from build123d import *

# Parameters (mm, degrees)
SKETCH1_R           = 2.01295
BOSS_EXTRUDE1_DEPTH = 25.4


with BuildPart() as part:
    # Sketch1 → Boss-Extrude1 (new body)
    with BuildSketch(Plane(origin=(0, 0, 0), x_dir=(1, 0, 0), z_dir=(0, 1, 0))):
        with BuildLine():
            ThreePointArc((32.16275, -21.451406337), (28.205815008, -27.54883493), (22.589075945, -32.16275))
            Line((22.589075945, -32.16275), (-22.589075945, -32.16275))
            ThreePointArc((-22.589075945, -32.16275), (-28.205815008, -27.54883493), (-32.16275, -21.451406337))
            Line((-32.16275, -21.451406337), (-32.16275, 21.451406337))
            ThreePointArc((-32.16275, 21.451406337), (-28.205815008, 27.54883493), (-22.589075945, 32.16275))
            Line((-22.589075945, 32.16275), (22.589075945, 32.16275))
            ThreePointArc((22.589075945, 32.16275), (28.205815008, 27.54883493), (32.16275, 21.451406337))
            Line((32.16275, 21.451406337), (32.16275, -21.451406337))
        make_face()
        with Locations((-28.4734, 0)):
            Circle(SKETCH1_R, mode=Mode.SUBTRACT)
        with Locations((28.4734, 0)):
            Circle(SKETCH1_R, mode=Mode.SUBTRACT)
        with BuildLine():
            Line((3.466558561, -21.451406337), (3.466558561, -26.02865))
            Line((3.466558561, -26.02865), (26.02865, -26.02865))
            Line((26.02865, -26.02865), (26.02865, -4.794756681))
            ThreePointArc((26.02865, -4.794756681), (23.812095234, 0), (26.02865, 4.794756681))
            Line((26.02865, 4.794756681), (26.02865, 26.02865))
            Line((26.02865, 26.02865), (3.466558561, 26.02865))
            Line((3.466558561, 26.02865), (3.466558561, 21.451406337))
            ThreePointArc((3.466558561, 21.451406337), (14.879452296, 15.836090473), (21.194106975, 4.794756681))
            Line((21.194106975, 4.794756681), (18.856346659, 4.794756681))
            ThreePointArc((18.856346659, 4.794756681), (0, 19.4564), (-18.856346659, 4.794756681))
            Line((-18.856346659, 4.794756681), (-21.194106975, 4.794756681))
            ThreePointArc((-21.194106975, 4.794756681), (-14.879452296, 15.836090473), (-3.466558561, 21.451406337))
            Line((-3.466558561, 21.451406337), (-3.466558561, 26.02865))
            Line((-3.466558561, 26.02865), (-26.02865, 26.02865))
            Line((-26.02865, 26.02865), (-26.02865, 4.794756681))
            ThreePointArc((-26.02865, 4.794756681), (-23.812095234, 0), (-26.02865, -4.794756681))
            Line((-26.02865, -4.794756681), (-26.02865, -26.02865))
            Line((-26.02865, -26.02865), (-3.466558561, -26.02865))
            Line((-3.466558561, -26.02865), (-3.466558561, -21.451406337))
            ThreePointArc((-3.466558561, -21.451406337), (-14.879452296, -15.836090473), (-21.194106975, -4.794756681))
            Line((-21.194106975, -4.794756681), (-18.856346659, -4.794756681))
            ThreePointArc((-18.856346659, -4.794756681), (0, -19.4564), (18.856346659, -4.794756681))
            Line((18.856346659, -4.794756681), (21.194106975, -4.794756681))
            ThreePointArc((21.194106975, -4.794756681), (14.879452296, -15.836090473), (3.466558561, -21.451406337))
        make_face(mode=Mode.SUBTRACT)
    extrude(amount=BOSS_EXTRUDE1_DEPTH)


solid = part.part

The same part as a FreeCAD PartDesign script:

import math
import FreeCAD as App
import Part
import Sketcher
from FreeCAD import Vector
Q = App.Units.Quantity

doc = App.newDocument("Part")
body = doc.addObject("PartDesign::Body", "Body")

sketch1 = doc.addObject("Sketcher::SketchObject", "Sketch")
body.addObject(sketch1)
sketch1.AttachmentSupport = (doc.XZ_Plane, [""])
sketch1.MapMode = "FlatFace"
sketch1.addGeometry(Part.ArcOfCircle(Part.Circle(Vector(10.509776, 11.732321, 0), Vector(0, 0, 1), 23.734193), math.radians(24.173252), math.radians(59.406694)), False)
sketch1.addGeometry(Part.LineSegment(Vector(32.16275, 21.451406, 0), Vector(32.16275, -21.451406, 0)), False)
sketch1.addGeometry(Part.ArcOfCircle(Part.Circle(Vector(10.509776, -11.732321, 0), Vector(0, 0, 1), 23.734193), math.radians(-59.406694), math.radians(-24.173252)), False)
sketch1.addGeometry(Part.LineSegment(Vector(22.589076, -32.16275, 0), Vector(-22.589076, -32.16275, 0)), False)
sketch1.addGeometry(Part.ArcOfCircle(Part.Circle(Vector(-10.509776, -11.732321, 0), Vector(0, 0, 1), 23.734193), math.radians(-155.826748), math.radians(-120.593306)), False)
sketch1.addGeometry(Part.LineSegment(Vector(-32.16275, -21.451406, 0), Vector(-32.16275, 21.451406, 0)), False)
sketch1.addGeometry(Part.ArcOfCircle(Part.Circle(Vector(-10.509776, 11.732321, 0), Vector(0, 0, 1), 23.734193), math.radians(120.593306), math.radians(155.826748)), False)
sketch1.addGeometry(Part.LineSegment(Vector(-22.589076, 32.16275, 0), Vector(22.589076, 32.16275, 0)), False)
sketch1.addGeometry(Part.Circle(Vector(28.4734, 0, 0), Vector(0, 0, 1), 2.01295), False)
sketch1.addGeometry(Part.ArcOfCircle(Part.Circle(Vector(0, 0, 0), Vector(0, 0, 1), 21.7297), math.radians(12.747479), math.radians(80.820331)), False)
sketch1.addGeometry(Part.LineSegment(Vector(21.194107, 4.794757, 0), Vector(18.856347, 4.794757, 0)), False)
sketch1.addGeometry(Part.ArcOfCircle(Part.Circle(Vector(0, 0, 0), Vector(0, 0, 1), 19.4564), math.radians(14.266711), math.radians(165.733289)), False)
sketch1.addGeometry(Part.LineSegment(Vector(-18.856347, 4.794757, 0), Vector(-21.194107, 4.794757, 0)), False)
sketch1.addGeometry(Part.ArcOfCircle(Part.Circle(Vector(0, 0, 0), Vector(0, 0, 1), 21.7297), math.radians(99.179669), math.radians(167.252521)), False)
sketch1.addGeometry(Part.LineSegment(Vector(-3.466559, 21.451406, 0), Vector(-3.466559, 26.02865, 0)), False)
sketch1.addGeometry(Part.LineSegment(Vector(-3.466559, 26.02865, 0), Vector(-26.02865, 26.02865, 0)), False)
sketch1.addGeometry(Part.LineSegment(Vector(-26.02865, 26.02865, 0), Vector(-26.02865, 4.794757, 0)), False)
sketch1.addGeometry(Part.ArcOfCircle(Part.Circle(Vector(-30.106279, 0, 0), Vector(0, 0, 1), 6.294184), math.radians(-49.620995), math.radians(49.620995)), False)
sketch1.addGeometry(Part.LineSegment(Vector(-26.02865, -4.794757, 0), Vector(-26.02865, -26.02865, 0)), False)
sketch1.addGeometry(Part.LineSegment(Vector(-26.02865, -26.02865, 0), Vector(-3.466559, -26.02865, 0)), False)
sketch1.addGeometry(Part.LineSegment(Vector(-3.466559, -26.02865, 0), Vector(-3.466559, -21.451406, 0)), False)
sketch1.addGeometry(Part.ArcOfCircle(Part.Circle(Vector(0, 0, 0), Vector(0, 0, 1), 21.7297), math.radians(-167.252521), math.radians(-99.179669)), False)
sketch1.addGeometry(Part.LineSegment(Vector(-21.194107, -4.794757, 0), Vector(-18.856347, -4.794757, 0)), False)
sketch1.addGeometry(Part.ArcOfCircle(Part.Circle(Vector(0, 0, 0), Vector(0, 0, 1), 19.4564), math.radians(-165.733289), math.radians(-14.266711)), False)
sketch1.addGeometry(Part.LineSegment(Vector(18.856347, -4.794757, 0), Vector(21.194107, -4.794757, 0)), False)
sketch1.addGeometry(Part.ArcOfCircle(Part.Circle(Vector(0, 0, 0), Vector(0, 0, 1), 21.7297), math.radians(-80.820331), math.radians(-12.747479)), False)
sketch1.addGeometry(Part.LineSegment(Vector(3.466559, -21.451406, 0), Vector(3.466559, -26.02865, 0)), False)
sketch1.addGeometry(Part.LineSegment(Vector(3.466559, -26.02865, 0), Vector(26.02865, -26.02865, 0)), False)
sketch1.addGeometry(Part.LineSegment(Vector(26.02865, -26.02865, 0), Vector(26.02865, -4.794757, 0)), False)
sketch1.addGeometry(Part.ArcOfCircle(Part.Circle(Vector(30.106279, 0, 0), Vector(0, 0, 1), 6.294184), math.radians(130.379005), math.radians(229.620995)), False)
sketch1.addGeometry(Part.LineSegment(Vector(26.02865, 4.794757, 0), Vector(26.02865, 26.02865, 0)), False)
sketch1.addGeometry(Part.LineSegment(Vector(26.02865, 26.02865, 0), Vector(3.466559, 26.02865, 0)), False)
sketch1.addGeometry(Part.LineSegment(Vector(3.466559, 26.02865, 0), Vector(3.466559, 21.451406, 0)), False)
sketch1.addGeometry(Part.Circle(Vector(-28.4734, 0, 0), Vector(0, 0, 1), 2.01295), False)
sketch1.addConstraint(Sketcher.Constraint("Coincident", 0, 1, 1, 1))
sketch1.addConstraint(Sketcher.Constraint("Coincident", 1, 2, 2, 2))
sketch1.addConstraint(Sketcher.Constraint("Coincident", 2, 1, 3, 1))
sketch1.addConstraint(Sketcher.Constraint("Coincident", 3, 2, 4, 2))
sketch1.addConstraint(Sketcher.Constraint("Coincident", 4, 1, 5, 1))
sketch1.addConstraint(Sketcher.Constraint("Coincident", 5, 2, 6, 2))
sketch1.addConstraint(Sketcher.Constraint("Coincident", 6, 1, 7, 1))
sketch1.addConstraint(Sketcher.Constraint("Coincident", 7, 2, 0, 2))
sketch1.addConstraint(Sketcher.Constraint("Coincident", 9, 1, 10, 1))
sketch1.addConstraint(Sketcher.Constraint("Coincident", 10, 2, 11, 1))
sketch1.addConstraint(Sketcher.Constraint("Coincident", 11, 2, 12, 1))
sketch1.addConstraint(Sketcher.Constraint("Coincident", 12, 2, 13, 2))
sketch1.addConstraint(Sketcher.Constraint("Coincident", 13, 1, 14, 1))
sketch1.addConstraint(Sketcher.Constraint("Coincident", 14, 2, 15, 1))
sketch1.addConstraint(Sketcher.Constraint("Coincident", 15, 2, 16, 1))
sketch1.addConstraint(Sketcher.Constraint("Coincident", 16, 2, 17, 2))
sketch1.addConstraint(Sketcher.Constraint("Coincident", 17, 1, 18, 1))
sketch1.addConstraint(Sketcher.Constraint("Coincident", 18, 2, 19, 1))
sketch1.addConstraint(Sketcher.Constraint("Coincident", 19, 2, 20, 1))
sketch1.addConstraint(Sketcher.Constraint("Coincident", 20, 2, 21, 2))
sketch1.addConstraint(Sketcher.Constraint("Coincident", 21, 1, 22, 1))
sketch1.addConstraint(Sketcher.Constraint("Coincident", 22, 2, 23, 1))
sketch1.addConstraint(Sketcher.Constraint("Coincident", 23, 2, 24, 1))
sketch1.addConstraint(Sketcher.Constraint("Coincident", 24, 2, 25, 2))
sketch1.addConstraint(Sketcher.Constraint("Coincident", 25, 1, 26, 1))
sketch1.addConstraint(Sketcher.Constraint("Coincident", 26, 2, 27, 1))
sketch1.addConstraint(Sketcher.Constraint("Coincident", 27, 2, 28, 1))
sketch1.addConstraint(Sketcher.Constraint("Coincident", 28, 2, 29, 2))
sketch1.addConstraint(Sketcher.Constraint("Coincident", 29, 1, 30, 1))
sketch1.addConstraint(Sketcher.Constraint("Coincident", 30, 2, 31, 1))
sketch1.addConstraint(Sketcher.Constraint("Coincident", 31, 2, 32, 1))
sketch1.addConstraint(Sketcher.Constraint("Coincident", 32, 2, 9, 2))
sketch1.addConstraint(Sketcher.Constraint("Vertical", 1))
sketch1.addConstraint(Sketcher.Constraint("Horizontal", 3))
sketch1.addConstraint(Sketcher.Constraint("Vertical", 5))
sketch1.addConstraint(Sketcher.Constraint("Horizontal", 7))
sketch1.addConstraint(Sketcher.Constraint("Horizontal", 10))
sketch1.addConstraint(Sketcher.Constraint("Horizontal", 12))
sketch1.addConstraint(Sketcher.Constraint("Vertical", 14))
sketch1.addConstraint(Sketcher.Constraint("Horizontal", 15))
sketch1.addConstraint(Sketcher.Constraint("Vertical", 16))
sketch1.addConstraint(Sketcher.Constraint("Vertical", 18))
sketch1.addConstraint(Sketcher.Constraint("Horizontal", 19))
sketch1.addConstraint(Sketcher.Constraint("Vertical", 20))
sketch1.addConstraint(Sketcher.Constraint("Horizontal", 22))
sketch1.addConstraint(Sketcher.Constraint("Horizontal", 24))
sketch1.addConstraint(Sketcher.Constraint("Vertical", 26))
sketch1.addConstraint(Sketcher.Constraint("Horizontal", 27))
sketch1.addConstraint(Sketcher.Constraint("Vertical", 28))
sketch1.addConstraint(Sketcher.Constraint("Vertical", 30))
sketch1.addConstraint(Sketcher.Constraint("Horizontal", 31))
sketch1.addConstraint(Sketcher.Constraint("Vertical", 32))
sketch1.addConstraint(Sketcher.Constraint("Coincident", 9, 3, -1, 1))
sketch1.addConstraint(Sketcher.Constraint("Coincident", 11, 3, -1, 1))
sketch1.addConstraint(Sketcher.Constraint("Coincident", 13, 3, -1, 1))
sketch1.addConstraint(Sketcher.Constraint("Coincident", 21, 3, -1, 1))
sketch1.addConstraint(Sketcher.Constraint("Coincident", 23, 3, -1, 1))
sketch1.addConstraint(Sketcher.Constraint("Coincident", 25, 3, -1, 1))
sketch1.addConstraint(Sketcher.Constraint("Equal", 0, 2))
sketch1.addConstraint(Sketcher.Constraint("Equal", 2, 4))
sketch1.addConstraint(Sketcher.Constraint("Equal", 4, 6))
sketch1.addConstraint(Sketcher.Constraint("Equal", 9, 13))
sketch1.addConstraint(Sketcher.Constraint("Equal", 13, 21))
sketch1.addConstraint(Sketcher.Constraint("Equal", 11, 23))
sketch1.addConstraint(Sketcher.Constraint("Equal", 21, 25))
sketch1.addConstraint(Sketcher.Constraint("Equal", 17, 29))
sketch1.addConstraint(Sketcher.Constraint("Equal", 8, 33))
sketch1.addConstraint(Sketcher.Constraint("Symmetric", 0, 3, 4, 3, -1, 1))
sketch1.addConstraint(Sketcher.Constraint("Symmetric", 2, 3, 6, 3, -1, 1))
sketch1.addConstraint(Sketcher.Constraint("Symmetric", 17, 3, 29, 3, -1, 1))
sketch1.addConstraint(Sketcher.Constraint("Symmetric", 8, 3, 33, 3, -1, 1))
sketch1.addConstraint(Sketcher.Constraint("Symmetric", 14, 2, 26, 2, -1, 1))
sketch1.addConstraint(Sketcher.Constraint("Symmetric", 18, 2, 30, 2, -1, 1))
sketch1.addConstraint(Sketcher.Constraint("Symmetric", 2, 3, 4, 3, -2))
sketch1.addConstraint(Sketcher.Constraint("Symmetric", 19, 2, 26, 2, -2))
sketch1.addConstraint(Sketcher.Constraint("Symmetric", 17, 1, 28, 2, -2))
sketch1.addConstraint(Sketcher.Constraint("PointOnObject", 8, 3, -1))
sketch1.addConstraint(Sketcher.Constraint("Horizontal", 1, 2, 4, 1))
sketch1.addConstraint(Sketcher.Constraint("Horizontal", 10, 2, 11, 2))
sketch1.addConstraint(Sketcher.Constraint("Horizontal", 5, 2, 13, 1))
sketch1.addConstraint(Sketcher.Constraint("Horizontal", 12, 2, 16, 2))
sketch1.addConstraint(Sketcher.Constraint("Horizontal", 17, 1, 21, 1))
sketch1.addConstraint(Sketcher.Constraint("Horizontal", 22, 2, 23, 2))
sketch1.addConstraint(Sketcher.Constraint("Horizontal", 16, 2, 29, 1))
sketch1.addConstraint(Sketcher.Constraint("Horizontal", 13, 1, 32, 2))
sketch1.addConstraint(Sketcher.Constraint("Vertical", 3, 2, 6, 1))
sketch1.addConstraint(Sketcher.Constraint("Radius", 11, Q("0.766 in")))
sketch1.addConstraint(Sketcher.Constraint("Diameter", 8, Q("0.1585 in")))
sketch1.addConstraint(Sketcher.Constraint("Radius", 9, Q("0.8555 in")))
sketch1.addConstraint(Sketcher.Constraint("DistanceX", -1, 1, 8, 3, Q("1.121 in")))
sketch1.addConstraint(Sketcher.Constraint("Radius", 0, 23.734193))
sketch1.addConstraint(Sketcher.Constraint("Radius", 17, 6.294184))
sketch1.addConstraint(Sketcher.Constraint("DistanceY", 14, 2, 6, 1, Q("0.2415 in")))
sketch1.addConstraint(Sketcher.Constraint("DistanceX", 5, 2, 15, 2, Q("0.2415 in")))
sketch1.addConstraint(Sketcher.Constraint("DistanceX", 3, 2, 3, 1, 45.178152))
sketch1.addConstraint(Sketcher.Constraint("DistanceX", 10, 2, 10, 1, 2.33776))
sketch1.addConstraint(Sketcher.Constraint("DistanceX", 15, 2, 15, 1, 22.562091))
sketch1.addConstraint(Sketcher.Constraint("DistanceX", 2, 3, 2, 1, 12.0793))
sketch1.addConstraint(Sketcher.Constraint("DistanceY", 1, 2, 1, 1, 42.902813))
pad1 = doc.addObject("PartDesign::Pad", "Pad")
body.addObject(pad1)
pad1.Profile = sketch1
pad1.Length = Q("1 in")
pad1.Reversed = True

doc.recompute()
